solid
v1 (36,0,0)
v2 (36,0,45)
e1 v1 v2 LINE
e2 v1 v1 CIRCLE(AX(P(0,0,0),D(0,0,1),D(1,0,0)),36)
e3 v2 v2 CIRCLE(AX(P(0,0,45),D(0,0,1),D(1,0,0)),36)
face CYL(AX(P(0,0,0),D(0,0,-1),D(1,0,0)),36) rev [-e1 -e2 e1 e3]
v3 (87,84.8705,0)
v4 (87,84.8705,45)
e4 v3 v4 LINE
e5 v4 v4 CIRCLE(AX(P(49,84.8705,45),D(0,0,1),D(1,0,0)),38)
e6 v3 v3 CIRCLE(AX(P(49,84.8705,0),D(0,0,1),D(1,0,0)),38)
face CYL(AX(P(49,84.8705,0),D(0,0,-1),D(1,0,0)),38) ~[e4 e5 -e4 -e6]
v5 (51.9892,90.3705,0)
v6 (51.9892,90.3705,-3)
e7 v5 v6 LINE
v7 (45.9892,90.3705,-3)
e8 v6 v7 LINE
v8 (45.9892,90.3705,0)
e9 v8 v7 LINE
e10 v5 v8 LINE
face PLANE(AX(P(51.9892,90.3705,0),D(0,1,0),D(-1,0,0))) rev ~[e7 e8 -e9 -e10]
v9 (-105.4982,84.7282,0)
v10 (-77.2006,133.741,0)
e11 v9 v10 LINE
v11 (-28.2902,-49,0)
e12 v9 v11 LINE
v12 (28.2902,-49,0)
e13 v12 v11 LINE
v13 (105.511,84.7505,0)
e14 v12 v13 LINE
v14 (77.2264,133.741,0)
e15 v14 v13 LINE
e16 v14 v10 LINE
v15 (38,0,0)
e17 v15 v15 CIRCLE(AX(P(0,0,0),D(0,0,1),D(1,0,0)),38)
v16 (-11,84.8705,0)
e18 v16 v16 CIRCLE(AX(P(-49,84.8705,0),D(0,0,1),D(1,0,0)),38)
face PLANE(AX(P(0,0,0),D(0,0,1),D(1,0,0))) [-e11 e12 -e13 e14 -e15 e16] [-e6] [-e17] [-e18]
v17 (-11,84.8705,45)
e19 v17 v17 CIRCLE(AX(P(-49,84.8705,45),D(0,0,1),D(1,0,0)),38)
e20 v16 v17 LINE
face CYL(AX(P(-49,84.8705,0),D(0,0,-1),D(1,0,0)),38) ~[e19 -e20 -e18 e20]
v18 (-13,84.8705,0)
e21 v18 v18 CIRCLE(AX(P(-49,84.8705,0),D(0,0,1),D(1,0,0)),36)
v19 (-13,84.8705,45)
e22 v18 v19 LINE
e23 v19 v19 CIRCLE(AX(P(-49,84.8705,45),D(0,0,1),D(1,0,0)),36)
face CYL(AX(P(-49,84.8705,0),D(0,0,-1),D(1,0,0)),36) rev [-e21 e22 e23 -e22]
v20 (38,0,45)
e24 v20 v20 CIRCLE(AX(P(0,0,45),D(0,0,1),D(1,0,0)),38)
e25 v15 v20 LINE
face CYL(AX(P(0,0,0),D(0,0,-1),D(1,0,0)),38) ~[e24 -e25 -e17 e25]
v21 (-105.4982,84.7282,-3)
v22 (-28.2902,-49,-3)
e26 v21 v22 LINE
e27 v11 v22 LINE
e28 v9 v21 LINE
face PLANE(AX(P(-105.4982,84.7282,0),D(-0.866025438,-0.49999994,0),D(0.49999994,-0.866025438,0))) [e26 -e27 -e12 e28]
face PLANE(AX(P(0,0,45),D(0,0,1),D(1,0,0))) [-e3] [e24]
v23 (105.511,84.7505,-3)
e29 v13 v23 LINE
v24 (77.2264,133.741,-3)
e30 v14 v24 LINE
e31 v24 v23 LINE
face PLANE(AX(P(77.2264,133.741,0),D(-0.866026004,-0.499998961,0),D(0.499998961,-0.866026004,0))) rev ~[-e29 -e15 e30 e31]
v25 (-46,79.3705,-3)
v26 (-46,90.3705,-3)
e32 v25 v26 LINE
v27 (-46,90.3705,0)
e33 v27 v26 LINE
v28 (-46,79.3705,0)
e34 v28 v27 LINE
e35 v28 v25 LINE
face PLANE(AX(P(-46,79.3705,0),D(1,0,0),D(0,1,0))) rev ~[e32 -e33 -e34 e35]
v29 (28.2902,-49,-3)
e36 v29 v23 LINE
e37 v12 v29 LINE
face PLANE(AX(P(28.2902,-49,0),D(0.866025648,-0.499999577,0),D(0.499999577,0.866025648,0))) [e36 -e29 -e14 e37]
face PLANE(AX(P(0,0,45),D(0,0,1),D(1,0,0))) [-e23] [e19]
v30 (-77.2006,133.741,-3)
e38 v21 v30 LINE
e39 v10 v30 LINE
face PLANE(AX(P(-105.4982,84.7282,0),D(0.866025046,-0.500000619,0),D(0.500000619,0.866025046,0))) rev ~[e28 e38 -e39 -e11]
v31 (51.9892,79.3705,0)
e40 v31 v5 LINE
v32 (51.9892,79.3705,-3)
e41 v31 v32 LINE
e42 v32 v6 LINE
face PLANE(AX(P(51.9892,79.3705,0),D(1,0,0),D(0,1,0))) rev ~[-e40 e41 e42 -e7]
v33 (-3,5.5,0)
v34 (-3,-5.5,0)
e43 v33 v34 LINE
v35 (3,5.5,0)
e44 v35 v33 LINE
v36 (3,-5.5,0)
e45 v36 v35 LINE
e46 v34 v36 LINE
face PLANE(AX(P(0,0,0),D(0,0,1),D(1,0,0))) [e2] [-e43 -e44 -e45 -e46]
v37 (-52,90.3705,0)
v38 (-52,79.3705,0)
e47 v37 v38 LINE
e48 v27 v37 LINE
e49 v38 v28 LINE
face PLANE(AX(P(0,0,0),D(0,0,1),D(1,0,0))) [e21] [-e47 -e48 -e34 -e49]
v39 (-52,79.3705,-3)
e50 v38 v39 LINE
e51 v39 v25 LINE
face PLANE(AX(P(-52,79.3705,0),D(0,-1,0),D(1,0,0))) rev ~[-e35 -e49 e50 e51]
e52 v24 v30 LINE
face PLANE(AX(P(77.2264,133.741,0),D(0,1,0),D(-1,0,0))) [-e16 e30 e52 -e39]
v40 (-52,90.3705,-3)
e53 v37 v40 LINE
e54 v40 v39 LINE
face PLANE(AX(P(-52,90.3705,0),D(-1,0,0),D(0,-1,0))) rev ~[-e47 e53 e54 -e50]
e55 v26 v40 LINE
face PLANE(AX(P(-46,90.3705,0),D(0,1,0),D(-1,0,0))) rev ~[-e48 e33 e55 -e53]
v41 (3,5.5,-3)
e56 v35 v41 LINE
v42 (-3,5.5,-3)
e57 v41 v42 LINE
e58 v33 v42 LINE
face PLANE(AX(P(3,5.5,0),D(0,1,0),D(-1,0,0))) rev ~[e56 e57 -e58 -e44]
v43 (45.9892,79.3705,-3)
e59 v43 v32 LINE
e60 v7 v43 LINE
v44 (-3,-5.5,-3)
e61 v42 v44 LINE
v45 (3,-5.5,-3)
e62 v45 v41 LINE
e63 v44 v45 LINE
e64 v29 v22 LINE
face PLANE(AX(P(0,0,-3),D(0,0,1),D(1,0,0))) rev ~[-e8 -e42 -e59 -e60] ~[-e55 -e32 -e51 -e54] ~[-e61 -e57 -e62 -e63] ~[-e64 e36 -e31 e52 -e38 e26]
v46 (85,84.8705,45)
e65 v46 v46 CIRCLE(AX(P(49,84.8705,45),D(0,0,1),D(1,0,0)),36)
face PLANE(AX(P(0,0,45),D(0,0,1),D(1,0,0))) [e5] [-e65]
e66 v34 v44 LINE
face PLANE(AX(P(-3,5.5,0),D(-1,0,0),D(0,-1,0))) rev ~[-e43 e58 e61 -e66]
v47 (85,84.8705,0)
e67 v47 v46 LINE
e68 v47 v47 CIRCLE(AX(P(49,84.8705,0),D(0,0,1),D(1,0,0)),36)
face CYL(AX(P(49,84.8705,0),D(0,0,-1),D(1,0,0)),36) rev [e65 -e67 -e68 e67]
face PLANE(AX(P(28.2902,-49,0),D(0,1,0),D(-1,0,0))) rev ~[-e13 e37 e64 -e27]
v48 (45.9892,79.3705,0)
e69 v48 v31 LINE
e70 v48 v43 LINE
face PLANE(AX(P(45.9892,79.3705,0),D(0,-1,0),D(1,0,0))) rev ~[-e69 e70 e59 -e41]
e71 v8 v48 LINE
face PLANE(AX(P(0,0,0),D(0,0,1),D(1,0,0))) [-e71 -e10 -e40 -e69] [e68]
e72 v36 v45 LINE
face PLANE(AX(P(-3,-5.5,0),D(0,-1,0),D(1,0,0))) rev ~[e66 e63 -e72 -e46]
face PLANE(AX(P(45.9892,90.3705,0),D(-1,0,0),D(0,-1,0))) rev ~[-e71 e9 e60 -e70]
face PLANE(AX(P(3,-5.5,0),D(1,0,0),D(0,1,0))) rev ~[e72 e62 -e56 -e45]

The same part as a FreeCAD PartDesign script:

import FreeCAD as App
import Part
import Sketcher

V = App.Vector
Q = App.Units.Quantity


def add_polygon(sketch, points):
    """Adds a closed chain of lines whose ends are joined by coincident constraints."""
    first, n = sketch.GeometryCount, len(points)
    for a, b in zip(points, points[1:] + points[:1]):
        sketch.addGeometry(Part.LineSegment(App.Vector(*a, 0), App.Vector(*b, 0)), False)
    for i in range(n):
        sketch.addConstraint(Sketcher.Constraint("Coincident", first + i, 2, first + (i + 1) % n, 1))

doc = App.newDocument("Part")
body = doc.addObject("PartDesign::Body", "Body")
body.AllowCompound = True

# Sketch on XY plane
sketch1 = doc.addObject("Sketcher::SketchObject", "Sketch")
body.addObject(sketch1)
sketch1.AttachmentSupport = (doc.XY_Plane, [""])
sketch1.MapMode = "FlatFace"
sketch1.addGeometry(Part.Circle(V(-49, 84.8705, 0), V(0, 0, 1), 38), False)
sketch1.addGeometry(Part.Circle(V(-49, 84.8705, 0), V(0, 0, 1), 36), False)
sketch1.addGeometry(Part.Circle(V(49, 84.8705, 0), V(0, 0, 1), 38), False)
sketch1.addGeometry(Part.Circle(V(49, 84.8705, 0), V(0, 0, 1), 36), False)
sketch1.addGeometry(Part.Circle(V(0, 0, 0), V(0, 0, 1), 38), False)
sketch1.addGeometry(Part.Circle(V(0, 0, 0), V(0, 0, 1), 36), False)
sketch1.addConstraint(Sketcher.Constraint("Coincident", 4, 3, -1, 1))
sketch1.addConstraint(Sketcher.Constraint("Coincident", 5, 3, -1, 1))
sketch1.addConstraint(Sketcher.Constraint("Coincident", 1, 3, 0, 3))
sketch1.addConstraint(Sketcher.Constraint("Coincident", 3, 3, 2, 3))
sketch1.addConstraint(Sketcher.Constraint("Equal", 0, 2))
sketch1.addConstraint(Sketcher.Constraint("Equal", 1, 3))
sketch1.addConstraint(Sketcher.Constraint("Equal", 2, 4))
sketch1.addConstraint(Sketcher.Constraint("Equal", 3, 5))
sketch1.addConstraint(Sketcher.Constraint("Symmetric", 0, 3, 2, 3, -2))
sketch1.addConstraint(Sketcher.Constraint("Diameter", 0, 76.0))
sketch1.addConstraint(Sketcher.Constraint("Diameter", 1, 72.0))
sketch1.addConstraint(Sketcher.Constraint("DistanceX", 0, 3, 2, 3, 98.0))
sketch1.addConstraint(Sketcher.Constraint("DistanceY", -1, 1, 0, 3, 84.8705))
pad1 = doc.addObject("PartDesign::Pad", "Pad")
body.addObject(pad1)
pad1.Profile = sketch1
pad1.Length = 45

# Sketch on XY plane
sketch2 = doc.addObject("Sketcher::SketchObject", "Sketch001")
body.addObject(sketch2)
sketch2.AttachmentSupport = (doc.XY_Plane, [""])
sketch2.MapMode = "FlatFace"
add_polygon(sketch2, [(105.511, 84.7505), (77.2264, 133.741), (-77.2006, 133.741), (-105.4982, 84.7282), (-28.2902, -49), (28.2902, -49)])  # lines 0-5
sketch2.addConstraint(Sketcher.Constraint("Horizontal", 1))
sketch2.addConstraint(Sketcher.Constraint("Horizontal", 4))
sketch2.addConstraint(Sketcher.Constraint("Parallel", 0, 3))
sketch2.addConstraint(Sketcher.Constraint("Parallel", 2, 5))
sketch2.addConstraint(Sketcher.Constraint("Angle", 0, Q("120 deg")))
sketch2.addConstraint(Sketcher.Constraint("Angle", 2, Q("-120 deg")))
sketch2.addConstraint(Sketcher.Constraint("DistanceY", 3, 2, -1, 1, 49.0))
sketch2.addConstraint(Sketcher.Constraint("DistanceX", 1, 2, 1, 1, 154.427))
sketch2.addConstraint(Sketcher.Constraint("Distance", 3, 154.416))
sketch2.addConstraint(Sketcher.Constraint("DistanceX", 4, 1, 4, 2, 56.5804))
sketch2.addConstraint(Sketcher.Constraint("DistanceY", -1, 1, 0, 2, 133.741))
sketch2.addConstraint(Sketcher.Constraint("DistanceX", -1, 1, 5, 2, 105.511))
pad2 = doc.addObject("PartDesign::Pad", "Pad001")
body.addObject(pad2)
pad2.Profile = sketch2
pad2.Length = 3
pad2.Reversed = True

# Sketch on XY plane
sketch3 = doc.addObject("Sketcher::SketchObject", "Sketch002")
body.addObject(sketch3)
sketch3.AttachmentSupport = (doc.XY_Plane, [""])
sketch3.MapMode = "FlatFace"
add_polygon(sketch3, [(-52, 90.3705), (-52, 79.3705), (-46, 79.3705), (-46, 90.3705)])  # lines 0-3
add_polygon(sketch3, [(45.9892, 90.3705), (45.9892, 79.3705), (51.9892, 79.3705), (51.9892, 90.3705)])  # lines 4-7
add_polygon(sketch3, [(-3, 5.5), (-3, -5.5), (3, -5.5), (3, 5.5)])  # lines 8-11
sketch3.addConstraint(Sketcher.Constraint("Vertical", 0))
sketch3.addConstraint(Sketcher.Constraint("Horizontal", 1))
sketch3.addConstraint(Sketcher.Constraint("Vertical", 2))
sketch3.addConstraint(Sketcher.Constraint("Horizontal", 3))
sketch3.addConstraint(Sketcher.Constraint("Vertical", 4))
sketch3.addConstraint(Sketcher.Constraint("Horizontal", 5))
sketch3.addConstraint(Sketcher.Constraint("Vertical", 6))
sketch3.addConstraint(Sketcher.Constraint("Horizontal", 7))
sketch3.addConstraint(Sketcher.Constraint("Vertical", 8))
sketch3.addConstraint(Sketcher.Constraint("Horizontal", 9))
sketch3.addConstraint(Sketcher.Constraint("Vertical", 10))
sketch3.addConstraint(Sketcher.Constraint("Horizontal", 11))
sketch3.addConstraint(Sketcher.Constraint("Symmetric", 8, 2, 10, 2, -1, 1))
sketch3.addConstraint(Sketcher.Constraint("Horizontal", 1, 2, 4, 2))
sketch3.addConstraint(Sketcher.Constraint("Horizontal", 3, 2, 6, 2))
sketch3.addConstraint(Sketcher.Constraint("Equal", 3, 5))
sketch3.addConstraint(Sketcher.Constraint("Equal", 7, 9))
sketch3.addConstraint(Sketcher.Constraint("Equal", 6, 8))
sketch3.addConstraint(Sketcher.Constraint("DistanceX", 1, 1, 1, 2, 6.0))
sketch3.addConstraint(Sketcher.Constraint("DistanceY", 0, 2, 0, 1, 11.0))
sketch3.addConstraint(Sketcher.Constraint("DistanceX", 0, 2, -1, 1, 52.0))
sketch3.addConstraint(Sketcher.Constraint("DistanceY", -1, 1, 0, 2, 79.3705))
sketch3.addConstraint(Sketcher.Constraint("DistanceX", -1, 1, 4, 2, 45.9892))
pocket1 = doc.addObject("PartDesign::Pocket", "Pocket")
body.addObject(pocket1)
pocket1.Profile = sketch3
pocket1.Length = 3

doc.recompute()
